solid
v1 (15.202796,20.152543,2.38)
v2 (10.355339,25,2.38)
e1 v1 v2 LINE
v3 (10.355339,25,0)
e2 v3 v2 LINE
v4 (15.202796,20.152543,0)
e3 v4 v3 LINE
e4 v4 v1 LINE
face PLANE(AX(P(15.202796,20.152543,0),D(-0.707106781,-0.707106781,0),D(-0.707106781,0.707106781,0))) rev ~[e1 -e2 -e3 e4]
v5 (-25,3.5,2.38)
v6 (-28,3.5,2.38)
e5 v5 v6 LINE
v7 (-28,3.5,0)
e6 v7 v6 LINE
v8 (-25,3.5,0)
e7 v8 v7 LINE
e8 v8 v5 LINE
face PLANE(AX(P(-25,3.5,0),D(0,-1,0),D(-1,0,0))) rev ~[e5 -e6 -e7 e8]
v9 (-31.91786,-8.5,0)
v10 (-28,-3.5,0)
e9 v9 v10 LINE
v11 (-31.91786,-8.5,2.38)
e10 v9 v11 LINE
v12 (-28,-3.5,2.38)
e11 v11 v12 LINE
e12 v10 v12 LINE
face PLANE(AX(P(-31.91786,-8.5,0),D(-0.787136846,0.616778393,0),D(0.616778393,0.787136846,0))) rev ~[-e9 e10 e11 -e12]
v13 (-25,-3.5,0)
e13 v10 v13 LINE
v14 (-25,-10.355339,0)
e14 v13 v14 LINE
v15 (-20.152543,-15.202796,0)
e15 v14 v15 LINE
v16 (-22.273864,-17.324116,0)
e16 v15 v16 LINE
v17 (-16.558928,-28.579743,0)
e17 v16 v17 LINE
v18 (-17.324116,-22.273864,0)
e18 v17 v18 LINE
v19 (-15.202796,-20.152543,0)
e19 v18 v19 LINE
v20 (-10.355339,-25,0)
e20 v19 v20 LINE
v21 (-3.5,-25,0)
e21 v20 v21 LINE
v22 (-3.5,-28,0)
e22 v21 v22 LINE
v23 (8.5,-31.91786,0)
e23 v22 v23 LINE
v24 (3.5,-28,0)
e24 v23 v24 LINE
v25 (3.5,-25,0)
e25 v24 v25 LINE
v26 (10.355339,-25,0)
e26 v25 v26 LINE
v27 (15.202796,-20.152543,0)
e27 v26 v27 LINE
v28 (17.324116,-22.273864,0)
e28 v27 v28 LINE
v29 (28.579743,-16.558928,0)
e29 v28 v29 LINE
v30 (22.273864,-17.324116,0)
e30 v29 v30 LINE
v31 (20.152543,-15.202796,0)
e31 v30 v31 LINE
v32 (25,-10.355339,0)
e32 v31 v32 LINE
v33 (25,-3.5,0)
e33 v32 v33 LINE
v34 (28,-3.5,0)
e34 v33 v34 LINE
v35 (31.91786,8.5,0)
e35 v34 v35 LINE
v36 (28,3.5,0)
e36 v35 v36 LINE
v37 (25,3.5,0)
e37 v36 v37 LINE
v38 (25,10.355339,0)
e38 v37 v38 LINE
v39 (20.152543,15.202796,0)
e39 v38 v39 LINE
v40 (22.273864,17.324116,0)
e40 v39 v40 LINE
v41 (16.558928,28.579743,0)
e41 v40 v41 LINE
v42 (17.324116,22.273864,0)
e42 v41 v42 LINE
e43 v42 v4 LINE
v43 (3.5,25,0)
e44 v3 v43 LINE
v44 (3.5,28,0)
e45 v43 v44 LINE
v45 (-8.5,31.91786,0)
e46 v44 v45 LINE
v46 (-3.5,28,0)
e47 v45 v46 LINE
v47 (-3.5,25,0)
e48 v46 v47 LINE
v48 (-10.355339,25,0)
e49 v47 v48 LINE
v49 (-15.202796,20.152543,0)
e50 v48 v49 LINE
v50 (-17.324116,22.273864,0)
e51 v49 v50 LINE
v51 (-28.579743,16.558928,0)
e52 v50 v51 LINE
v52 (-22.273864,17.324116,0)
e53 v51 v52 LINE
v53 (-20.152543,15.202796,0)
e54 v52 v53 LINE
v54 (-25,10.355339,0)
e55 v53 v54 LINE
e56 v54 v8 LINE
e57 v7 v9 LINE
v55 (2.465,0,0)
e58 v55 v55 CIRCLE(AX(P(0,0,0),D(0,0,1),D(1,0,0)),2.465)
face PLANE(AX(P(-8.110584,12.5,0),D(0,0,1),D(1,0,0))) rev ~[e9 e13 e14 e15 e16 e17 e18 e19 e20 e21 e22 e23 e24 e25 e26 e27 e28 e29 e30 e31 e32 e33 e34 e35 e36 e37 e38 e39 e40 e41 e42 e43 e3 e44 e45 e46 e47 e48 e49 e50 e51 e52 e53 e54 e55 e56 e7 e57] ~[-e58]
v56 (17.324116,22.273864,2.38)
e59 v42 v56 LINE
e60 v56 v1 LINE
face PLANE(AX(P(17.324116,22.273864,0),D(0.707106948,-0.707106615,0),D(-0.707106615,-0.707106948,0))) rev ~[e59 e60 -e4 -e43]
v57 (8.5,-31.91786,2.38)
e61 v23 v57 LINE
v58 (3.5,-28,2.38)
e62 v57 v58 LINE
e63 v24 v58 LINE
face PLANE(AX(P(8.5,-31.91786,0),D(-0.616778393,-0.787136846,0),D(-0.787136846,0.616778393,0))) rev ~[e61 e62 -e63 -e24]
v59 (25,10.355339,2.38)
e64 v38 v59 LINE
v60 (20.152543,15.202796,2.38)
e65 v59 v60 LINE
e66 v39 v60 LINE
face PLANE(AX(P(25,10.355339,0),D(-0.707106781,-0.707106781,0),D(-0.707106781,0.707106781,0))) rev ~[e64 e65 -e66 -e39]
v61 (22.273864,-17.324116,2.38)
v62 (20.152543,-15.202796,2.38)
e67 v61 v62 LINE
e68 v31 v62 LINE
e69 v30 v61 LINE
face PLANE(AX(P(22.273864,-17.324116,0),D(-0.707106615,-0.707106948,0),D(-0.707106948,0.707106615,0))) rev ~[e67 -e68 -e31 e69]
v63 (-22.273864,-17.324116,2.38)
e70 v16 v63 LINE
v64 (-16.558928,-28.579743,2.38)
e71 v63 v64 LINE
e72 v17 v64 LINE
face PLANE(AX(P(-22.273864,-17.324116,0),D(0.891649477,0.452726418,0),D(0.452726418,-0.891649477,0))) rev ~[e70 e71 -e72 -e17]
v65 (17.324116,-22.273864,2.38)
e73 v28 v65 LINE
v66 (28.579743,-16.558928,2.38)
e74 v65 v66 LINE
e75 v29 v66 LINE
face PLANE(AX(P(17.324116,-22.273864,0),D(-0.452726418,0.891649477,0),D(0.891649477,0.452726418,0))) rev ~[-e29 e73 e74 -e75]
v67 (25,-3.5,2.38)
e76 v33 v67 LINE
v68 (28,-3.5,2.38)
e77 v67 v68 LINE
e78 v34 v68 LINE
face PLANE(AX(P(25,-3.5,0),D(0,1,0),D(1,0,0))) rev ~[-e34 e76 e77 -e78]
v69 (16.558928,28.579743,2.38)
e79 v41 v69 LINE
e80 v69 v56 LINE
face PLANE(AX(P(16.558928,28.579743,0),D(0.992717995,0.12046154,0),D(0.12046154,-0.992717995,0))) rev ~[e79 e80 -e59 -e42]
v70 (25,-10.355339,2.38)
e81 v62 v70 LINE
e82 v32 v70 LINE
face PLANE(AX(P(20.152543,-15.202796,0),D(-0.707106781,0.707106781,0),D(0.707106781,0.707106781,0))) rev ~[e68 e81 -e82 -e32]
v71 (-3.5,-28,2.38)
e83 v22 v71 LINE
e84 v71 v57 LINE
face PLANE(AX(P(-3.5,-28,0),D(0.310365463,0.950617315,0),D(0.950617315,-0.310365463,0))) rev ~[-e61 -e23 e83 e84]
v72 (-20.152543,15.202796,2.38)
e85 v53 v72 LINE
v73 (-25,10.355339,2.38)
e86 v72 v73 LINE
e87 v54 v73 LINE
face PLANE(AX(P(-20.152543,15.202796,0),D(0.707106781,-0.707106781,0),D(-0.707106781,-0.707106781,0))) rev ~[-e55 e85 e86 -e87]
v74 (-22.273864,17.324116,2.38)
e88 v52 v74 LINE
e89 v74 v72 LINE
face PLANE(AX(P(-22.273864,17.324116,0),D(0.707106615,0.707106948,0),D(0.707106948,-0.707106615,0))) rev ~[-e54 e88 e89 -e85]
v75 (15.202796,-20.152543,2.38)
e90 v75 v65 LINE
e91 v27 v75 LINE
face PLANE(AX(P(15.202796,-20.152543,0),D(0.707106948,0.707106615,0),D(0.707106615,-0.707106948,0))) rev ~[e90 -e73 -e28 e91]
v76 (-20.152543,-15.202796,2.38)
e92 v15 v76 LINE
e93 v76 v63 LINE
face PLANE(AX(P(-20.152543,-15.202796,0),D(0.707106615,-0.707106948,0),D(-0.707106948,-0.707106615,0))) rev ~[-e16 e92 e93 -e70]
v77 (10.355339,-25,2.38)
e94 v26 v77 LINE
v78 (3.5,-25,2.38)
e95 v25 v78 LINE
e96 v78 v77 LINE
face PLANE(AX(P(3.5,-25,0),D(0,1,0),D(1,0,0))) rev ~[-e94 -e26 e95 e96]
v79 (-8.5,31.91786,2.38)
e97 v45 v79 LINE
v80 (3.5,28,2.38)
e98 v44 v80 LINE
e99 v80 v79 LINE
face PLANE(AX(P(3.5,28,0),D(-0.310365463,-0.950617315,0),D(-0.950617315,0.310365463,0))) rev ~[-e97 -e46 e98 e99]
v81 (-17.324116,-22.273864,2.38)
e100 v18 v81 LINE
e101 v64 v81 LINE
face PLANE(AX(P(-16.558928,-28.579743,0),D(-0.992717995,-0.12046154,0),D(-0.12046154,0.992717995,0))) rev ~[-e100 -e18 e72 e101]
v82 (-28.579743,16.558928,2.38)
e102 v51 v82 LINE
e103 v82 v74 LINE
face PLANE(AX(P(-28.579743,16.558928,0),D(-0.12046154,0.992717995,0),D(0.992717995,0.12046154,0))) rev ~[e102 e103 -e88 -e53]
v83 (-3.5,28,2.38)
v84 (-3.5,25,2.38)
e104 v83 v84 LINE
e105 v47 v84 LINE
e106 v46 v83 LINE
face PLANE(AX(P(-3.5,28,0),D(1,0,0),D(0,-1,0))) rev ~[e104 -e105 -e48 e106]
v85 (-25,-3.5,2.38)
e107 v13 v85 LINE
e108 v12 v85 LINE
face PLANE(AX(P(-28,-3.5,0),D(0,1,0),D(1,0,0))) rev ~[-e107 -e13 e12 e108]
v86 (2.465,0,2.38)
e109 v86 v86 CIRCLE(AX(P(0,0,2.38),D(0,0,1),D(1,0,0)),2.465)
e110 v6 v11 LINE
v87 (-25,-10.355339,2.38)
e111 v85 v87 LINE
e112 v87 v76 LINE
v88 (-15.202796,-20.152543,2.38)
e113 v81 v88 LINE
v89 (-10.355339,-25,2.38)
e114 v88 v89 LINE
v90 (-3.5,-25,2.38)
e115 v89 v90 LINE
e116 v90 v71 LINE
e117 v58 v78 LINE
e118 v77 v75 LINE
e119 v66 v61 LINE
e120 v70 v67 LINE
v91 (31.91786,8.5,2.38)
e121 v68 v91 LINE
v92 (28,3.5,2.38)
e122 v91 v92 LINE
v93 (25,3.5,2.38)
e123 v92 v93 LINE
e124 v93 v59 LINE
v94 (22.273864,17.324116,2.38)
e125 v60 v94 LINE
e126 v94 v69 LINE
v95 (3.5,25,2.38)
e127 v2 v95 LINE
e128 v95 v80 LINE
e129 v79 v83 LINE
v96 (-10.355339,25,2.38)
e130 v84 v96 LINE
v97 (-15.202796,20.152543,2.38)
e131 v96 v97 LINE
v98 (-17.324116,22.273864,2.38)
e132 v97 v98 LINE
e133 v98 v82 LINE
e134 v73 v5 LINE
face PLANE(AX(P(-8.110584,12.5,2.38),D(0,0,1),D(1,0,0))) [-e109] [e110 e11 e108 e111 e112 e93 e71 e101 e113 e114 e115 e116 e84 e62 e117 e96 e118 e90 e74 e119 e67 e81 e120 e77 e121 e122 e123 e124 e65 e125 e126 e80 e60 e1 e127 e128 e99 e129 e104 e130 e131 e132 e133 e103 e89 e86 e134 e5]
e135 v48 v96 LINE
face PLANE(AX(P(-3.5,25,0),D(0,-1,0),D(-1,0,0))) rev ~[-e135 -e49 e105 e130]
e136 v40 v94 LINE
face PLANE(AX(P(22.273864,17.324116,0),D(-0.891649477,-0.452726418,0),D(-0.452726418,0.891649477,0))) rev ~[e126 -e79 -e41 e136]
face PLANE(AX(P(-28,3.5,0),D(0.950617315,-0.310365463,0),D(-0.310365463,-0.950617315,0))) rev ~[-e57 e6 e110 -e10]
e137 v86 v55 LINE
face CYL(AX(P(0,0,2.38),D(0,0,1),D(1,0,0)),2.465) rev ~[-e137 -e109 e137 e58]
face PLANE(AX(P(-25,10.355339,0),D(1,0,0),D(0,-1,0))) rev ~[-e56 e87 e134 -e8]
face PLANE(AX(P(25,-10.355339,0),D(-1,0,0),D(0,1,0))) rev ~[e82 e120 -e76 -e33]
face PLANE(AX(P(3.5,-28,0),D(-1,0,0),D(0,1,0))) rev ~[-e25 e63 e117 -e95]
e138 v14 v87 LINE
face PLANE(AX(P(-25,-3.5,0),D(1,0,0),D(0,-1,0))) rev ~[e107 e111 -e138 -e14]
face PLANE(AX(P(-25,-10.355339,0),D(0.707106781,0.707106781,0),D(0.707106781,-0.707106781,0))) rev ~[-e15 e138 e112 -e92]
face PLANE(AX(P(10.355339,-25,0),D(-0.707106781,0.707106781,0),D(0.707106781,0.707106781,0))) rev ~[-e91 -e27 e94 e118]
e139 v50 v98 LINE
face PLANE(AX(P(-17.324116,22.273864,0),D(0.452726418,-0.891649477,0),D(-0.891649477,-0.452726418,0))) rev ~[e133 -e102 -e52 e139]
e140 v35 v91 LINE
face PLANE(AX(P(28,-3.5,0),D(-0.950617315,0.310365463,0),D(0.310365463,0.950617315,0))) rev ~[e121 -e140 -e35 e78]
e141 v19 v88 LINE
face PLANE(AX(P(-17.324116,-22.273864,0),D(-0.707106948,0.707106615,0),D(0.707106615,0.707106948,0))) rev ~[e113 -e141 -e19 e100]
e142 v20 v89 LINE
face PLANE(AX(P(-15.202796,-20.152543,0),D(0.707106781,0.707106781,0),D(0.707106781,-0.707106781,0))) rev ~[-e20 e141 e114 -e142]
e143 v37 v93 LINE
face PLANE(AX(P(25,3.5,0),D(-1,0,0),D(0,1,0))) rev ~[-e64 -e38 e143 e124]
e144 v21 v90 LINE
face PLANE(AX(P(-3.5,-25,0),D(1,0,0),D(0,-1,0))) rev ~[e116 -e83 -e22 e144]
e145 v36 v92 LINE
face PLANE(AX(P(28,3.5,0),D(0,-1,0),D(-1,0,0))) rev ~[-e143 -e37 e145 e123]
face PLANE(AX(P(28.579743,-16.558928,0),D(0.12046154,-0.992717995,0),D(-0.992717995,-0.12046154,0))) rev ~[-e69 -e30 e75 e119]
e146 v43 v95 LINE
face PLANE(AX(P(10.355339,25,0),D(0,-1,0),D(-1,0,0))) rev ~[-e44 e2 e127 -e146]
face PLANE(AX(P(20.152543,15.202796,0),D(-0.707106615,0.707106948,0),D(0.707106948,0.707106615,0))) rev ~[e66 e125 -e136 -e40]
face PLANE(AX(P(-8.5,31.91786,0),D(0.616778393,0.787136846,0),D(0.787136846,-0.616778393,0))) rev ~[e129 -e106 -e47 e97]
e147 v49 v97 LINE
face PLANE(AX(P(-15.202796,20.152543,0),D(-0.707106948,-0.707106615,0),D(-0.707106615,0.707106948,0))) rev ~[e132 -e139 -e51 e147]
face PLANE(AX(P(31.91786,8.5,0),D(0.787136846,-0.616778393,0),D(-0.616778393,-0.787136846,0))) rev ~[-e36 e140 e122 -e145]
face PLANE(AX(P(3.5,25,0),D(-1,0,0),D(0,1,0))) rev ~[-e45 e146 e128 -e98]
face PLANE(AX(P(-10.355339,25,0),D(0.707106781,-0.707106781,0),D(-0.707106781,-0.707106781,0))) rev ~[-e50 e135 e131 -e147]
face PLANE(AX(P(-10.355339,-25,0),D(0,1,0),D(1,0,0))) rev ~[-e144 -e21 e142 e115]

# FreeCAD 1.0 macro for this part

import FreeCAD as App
import Part
import Sketcher
Q = App.Units.Quantity

doc = App.newDocument("Part")
params = doc.addObject("Spreadsheet::Sheet", "Params")
for row, (alias, value) in enumerate([
    ("sketch1_width", "3 mm"),
    ("sketch1_length", "3 mm"),
    ("pad1_length", "2.38 mm"),
    ("sketch2_diameter", "4.93 mm"),
    ("pocket1_length", "25 mm"),
], start=1):
    params.set(f"A{row}", alias)
    params.set(f"B{row}", "=" + value)
    params.setAlias(f"B{row}", alias)

body = doc.addObject("PartDesign::Body", "Body")

# Sketch on XY plane
sketch1 = body.newObject("Sketcher::SketchObject", "Sketch")
sketch1.AttachmentSupport = (doc.getObject("XY_Plane"), [""])
sketch1.MapMode = "FlatFace"
sketch1.addGeometry([
    Part.LineSegment(App.Vector(10.355339, 25, 0), App.Vector(3.5, 25, 0)),  # 0
    Part.LineSegment(App.Vector(3.5, 25, 0), App.Vector(3.5, 28, 0)),  # 1
    Part.LineSegment(App.Vector(3.5, 28, 0), App.Vector(-8.5, 31.91786, 0)),  # 2
    Part.LineSegment(App.Vector(-8.5, 31.91786, 0), App.Vector(-3.5, 28, 0)),  # 3
    Part.LineSegment(App.Vector(-3.5, 28, 0), App.Vector(-3.5, 25, 0)),  # 4
    Part.LineSegment(App.Vector(-3.5, 25, 0), App.Vector(-10.355339, 25, 0)),  # 5
    Part.LineSegment(App.Vector(-10.355339, 25, 0), App.Vector(-15.202796, 20.152543, 0)),  # 6
    Part.LineSegment(App.Vector(-15.202796, 20.152543, 0), App.Vector(-17.324116, 22.273864, 0)),  # 7
    Part.LineSegment(App.Vector(-17.324116, 22.273864, 0), App.Vector(-28.579743, 16.558928, 0)),  # 8
    Part.LineSegment(App.Vector(-28.579743, 16.558928, 0), App.Vector(-22.273864, 17.324116, 0)),  # 9
    Part.LineSegment(App.Vector(-22.273864, 17.324116, 0), App.Vector(-20.152543, 15.202796, 0)),  # 10
    Part.LineSegment(App.Vector(-20.152543, 15.202796, 0), App.Vector(-25, 10.355339, 0)),  # 11
    Part.LineSegment(App.Vector(-25, 10.355339, 0), App.Vector(-25, 3.5, 0)),  # 12
    Part.LineSegment(App.Vector(-25, 3.5, 0), App.Vector(-28, 3.5, 0)),  # 13
    Part.LineSegment(App.Vector(-28, 3.5, 0), App.Vector(-31.91786, -8.5, 0)),  # 14
    Part.LineSegment(App.Vector(-31.91786, -8.5, 0), App.Vector(-28, -3.5, 0)),  # 15
    Part.LineSegment(App.Vector(-28, -3.5, 0), App.Vector(-25, -3.5, 0)),  # 16
    Part.LineSegment(App.Vector(-25, -3.5, 0), App.Vector(-25, -10.355339, 0)),  # 17
    Part.LineSegment(App.Vector(-25, -10.355339, 0), App.Vector(-20.152543, -15.202796, 0)),  # 18
    Part.LineSegment(App.Vector(-20.152543, -15.202796, 0), App.Vector(-22.273864, -17.324116, 0)),  # 19
    Part.LineSegment(App.Vector(-22.273864, -17.324116, 0), App.Vector(-16.558928, -28.579743, 0)),  # 20
    Part.LineSegment(App.Vector(-16.558928, -28.579743, 0), App.Vector(-17.324116, -22.273864, 0)),  # 21
    Part.LineSegment(App.Vector(-17.324116, -22.273864, 0), App.Vector(-15.202796, -20.152543, 0)),  # 22
    Part.LineSegment(App.Vector(-15.202796, -20.152543, 0), App.Vector(-10.355339, -25, 0)),  # 23
    Part.LineSegment(App.Vector(-10.355339, -25, 0), App.Vector(-3.5, -25, 0)),  # 24
    Part.LineSegment(App.Vector(-3.5, -25, 0), App.Vector(-3.5, -28, 0)),  # 25
    Part.LineSegment(App.Vector(-3.5, -28, 0), App.Vector(8.5, -31.91786, 0)),  # 26
    Part.LineSegment(App.Vector(8.5, -31.91786, 0), App.Vector(3.5, -28, 0)),  # 27
    Part.LineSegment(App.Vector(3.5, -28, 0), App.Vector(3.5, -25, 0)),  # 28
    Part.LineSegment(App.Vector(3.5, -25, 0), App.Vector(10.355339, -25, 0)),  # 29
    Part.LineSegment(App.Vector(10.355339, -25, 0), App.Vector(15.202796, -20.152543, 0)),  # 30
    Part.LineSegment(App.Vector(15.202796, -20.152543, 0), App.Vector(17.324116, -22.273864, 0)),  # 31
    Part.LineSegment(App.Vector(17.324116, -22.273864, 0), App.Vector(28.579743, -16.558928, 0)),  # 32
    Part.LineSegment(App.Vector(28.579743, -16.558928, 0), App.Vector(22.273864, -17.324116, 0)),  # 33
    Part.LineSegment(App.Vector(22.273864, -17.324116, 0), App.Vector(20.152543, -15.202796, 0)),  # 34
    Part.LineSegment(App.Vector(20.152543, -15.202796, 0), App.Vector(25, -10.355339, 0)),  # 35
    Part.LineSegment(App.Vector(25, -10.355339, 0), App.Vector(25, -3.5, 0)),  # 36
    Part.LineSegment(App.Vector(25, -3.5, 0), App.Vector(28, -3.5, 0)),  # 37
    Part.LineSegment(App.Vector(28, -3.5, 0), App.Vector(31.91786, 8.5, 0)),  # 38
    Part.LineSegment(App.Vector(31.91786, 8.5, 0), App.Vector(28, 3.5, 0)),  # 39
    Part.LineSegment(App.Vector(28, 3.5, 0), App.Vector(25, 3.5, 0)),  # 40
    Part.LineSegment(App.Vector(25, 3.5, 0), App.Vector(25, 10.355339, 0)),  # 41
    Part.LineSegment(App.Vector(25, 10.355339, 0), App.Vector(20.152543, 15.202796, 0)),  # 42
    Part.LineSegment(App.Vector(20.152543, 15.202796, 0), App.Vector(22.273864, 17.324116, 0)),  # 43
    Part.LineSegment(App.Vector(22.273864, 17.324116, 0), App.Vector(16.558928, 28.579743, 0)),  # 44
    Part.LineSegment(App.Vector(16.558928, 28.579743, 0), App.Vector(17.324116, 22.273864, 0)),  # 45
    Part.LineSegment(App.Vector(17.324116, 22.273864, 0), App.Vector(15.202796, 20.152543, 0)),  # 46
    Part.LineSegment(App.Vector(15.202796, 20.152543, 0), App.Vector(10.355339, 25, 0)),  # 47
], False)
sketch1.addConstraint([
    Sketcher.Constraint("Coincident", 0, 2, 1, 1),
    Sketcher.Constraint("Coincident", 1, 2, 2, 1),
    Sketcher.Constraint("Coincident", 2, 2, 3, 1),
    Sketcher.Constraint("Coincident", 3, 2, 4, 1),
    Sketcher.Constraint("Coincident", 4, 2, 5, 1),
    Sketcher.Constraint("Coincident", 5, 2, 6, 1),
    Sketcher.Constraint("Coincident", 6, 2, 7, 1),
    Sketcher.Constraint("Coincident", 7, 2, 8, 1),
    Sketcher.Constraint("Coincident", 8, 2, 9, 1),
    Sketcher.Constraint("Coincident", 9, 2, 10, 1),
    Sketcher.Constraint("Coincident", 10, 2, 11, 1),
    Sketcher.Constraint("Coincident", 11, 2, 12, 1),
    Sketcher.Constraint("Coincident", 12, 2, 13, 1),
    Sketcher.Constraint("Coincident", 13, 2, 14, 1),
    Sketcher.Constraint("Coincident", 14, 2, 15, 1),
    Sketcher.Constraint("Coincident", 15, 2, 16, 1),
    Sketcher.Constraint("Coincident", 16, 2, 17, 1),
    Sketcher.Constraint("Coincident", 17, 2, 18, 1),
    Sketcher.Constraint("Coincident", 18, 2, 19, 1),
    Sketcher.Constraint("Coincident", 19, 2, 20, 1),
    Sketcher.Constraint("Coincident", 20, 2, 21, 1),
    Sketcher.Constraint("Coincident", 21, 2, 22, 1),
    Sketcher.Constraint("Coincident", 22, 2, 23, 1),
    Sketcher.Constraint("Coincident", 23, 2, 24, 1),
    Sketcher.Constraint("Coincident", 24, 2, 25, 1),
    Sketcher.Constraint("Coincident", 25, 2, 26, 1),
    Sketcher.Constraint("Coincident", 26, 2, 27, 1),
    Sketcher.Constraint("Coincident", 27, 2, 28, 1),
    Sketcher.Constraint("Coincident", 28, 2, 29, 1),
    Sketcher.Constraint("Coincident", 29, 2, 30, 1),
    Sketcher.Constraint("Coincident", 30, 2, 31, 1),
    Sketcher.Constraint("Coincident", 31, 2, 32, 1),
    Sketcher.Constraint("Coincident", 32, 2, 33, 1),
    Sketcher.Constraint("Coincident", 33, 2, 34, 1),
    Sketcher.Constraint("Coincident", 34, 2, 35, 1),
    Sketcher.Constraint("Coincident", 35, 2, 36, 1),
    Sketcher.Constraint("Coincident", 36, 2, 37, 1),
    Sketcher.Constraint("Coincident", 37, 2, 38, 1),
    Sketcher.Constraint("Coincident", 38, 2, 39, 1),
    Sketcher.Constraint("Coincident", 39, 2, 40, 1),
    Sketcher.Constraint("Coincident", 40, 2, 41, 1),
    Sketcher.Constraint("Coincident", 41, 2, 42, 1),
    Sketcher.Constraint("Coincident", 42, 2, 43, 1),
    Sketcher.Constraint("Coincident", 43, 2, 44, 1),
    Sketcher.Constraint("Coincident", 44, 2, 45, 1),
    Sketcher.Constraint("Coincident", 45, 2, 46, 1),
    Sketcher.Constraint("Coincident", 46, 2, 47, 1),
    Sketcher.Constraint("Coincident", 47, 2, 0, 1),
    Sketcher.Constraint("Horizontal", 0),
    Sketcher.Constraint("Vertical", 1),
    Sketcher.Constraint("Vertical", 4),
    Sketcher.Constraint("Horizontal", 5),
    Sketcher.Constraint("Vertical", 12),
    Sketcher.Constraint("Horizontal", 13),
    Sketcher.Constraint("Horizontal", 16),
    Sketcher.Constraint("Vertical", 17),
    Sketcher.Constraint("Horizontal", 24),
    Sketcher.Constraint("Vertical", 25),
    Sketcher.Constraint("Vertical", 28),
    Sketcher.Constraint("Horizontal", 29),
    Sketcher.Constraint("Vertical", 36),
    Sketcher.Constraint("Horizontal", 37),
    Sketcher.Constraint("Horizontal", 40),
    Sketcher.Constraint("Vertical", 41),
    Sketcher.Constraint("Symmetric", 0, 2, 24, 2, -1, 1),
    Sketcher.Constraint("Symmetric", 2, 2, 26, 2, -1, 1),
    Sketcher.Constraint("Symmetric", 3, 2, 27, 2, -1, 1),
    Sketcher.Constraint("Symmetric", 5, 2, 29, 2, -1, 1),
    Sketcher.Constraint("Symmetric", 6, 2, 30, 2, -1, 1),
    Sketcher.Constraint("Symmetric", 7, 2, 31, 2, -1, 1),
    Sketcher.Constraint("Symmetric", 8, 2, 32, 2, -1, 1),
    Sketcher.Constraint("Symmetric", 9, 2, 33, 2, -1, 1),
    Sketcher.Constraint("Symmetric", 10, 2, 34, 2, -1, 1),
    Sketcher.Constraint("Symmetric", 11, 2, 35, 2, -1, 1),
    Sketcher.Constraint("Symmetric", 13, 2, 37, 2, -1, 1),
    Sketcher.Constraint("Symmetric", 14, 2, 38, 2, -1, 1),
    Sketcher.Constraint("Symmetric", 15, 2, 39, 2, -1, 1),
    Sketcher.Constraint("Symmetric", 17, 2, 41, 2, -1, 1),
    Sketcher.Constraint("Symmetric", 18, 2, 42, 2, -1, 1),
    Sketcher.Constraint("Symmetric", 19, 2, 43, 2, -1, 1),
    Sketcher.Constraint("Symmetric", 20, 2, 44, 2, -1, 1),
    Sketcher.Constraint("Symmetric", 21, 2, 45, 2, -1, 1),
    Sketcher.Constraint("Symmetric", 22, 2, 46, 2, -1, 1),
    Sketcher.Constraint("Symmetric", 1, 2, 3, 2, -2),
    Sketcher.Constraint("Symmetric", 23, 2, 29, 2, -2),
    Sketcher.Constraint("Symmetric", 22, 2, 30, 2, -2),
    Sketcher.Constraint("Symmetric", 21, 2, 31, 2, -2),
    Sketcher.Constraint("Symmetric", 19, 2, 33, 2, -2),
    Sketcher.Constraint("Symmetric", 18, 2, 34, 2, -2),
    Sketcher.Constraint("Symmetric", 17, 2, 35, 2, -2),
    Sketcher.Constraint("Symmetric", 15, 2, 37, 2, -2),
    Sketcher.Constraint("Perpendicular", 6, 7),
    Sketcher.Constraint("Parallel", 7, 10),
    Sketcher.Constraint("Perpendicular", 10, 11),
    Sketcher.Constraint("Perpendicular", 2, 14),
    Sketcher.Constraint("Perpendicular", 3, 15),
    Sketcher.Constraint("Perpendicular", 11, 18),
    Sketcher.Constraint("Perpendicular", 8, 20),
    Sketcher.Constraint("Perpendicular", 9, 21),
    Sketcher.Constraint("Perpendicular", 14, 26),
    Sketcher.Constraint("Perpendicular", 46, 47),
    Sketcher.Constraint("Equal", 40, 1),
    Sketcher.Constraint("Equal", 29, 12),
    Sketcher.Constraint("Equal", 2, 8),
    Sketcher.Constraint("Equal", 3, 9),
    Sketcher.Constraint("Equal", 7, 10),
    Sketcher.Constraint("Equal", 6, 11),
    Sketcher.Constraint("Equal", 8, 14),
    Sketcher.Constraint("Equal", 14, 20),
    Sketcher.Constraint("DistanceX", 13, 2, 13, 1, Q("3 mm")),
    Sketcher.Constraint("Distance", 7, Q("3 mm")),
    Sketcher.Constraint("DistanceY", -1, 1, 0, 2, Q("25 mm")),
    Sketcher.Constraint("DistanceX", 2, 2, 1, 2, Q("12 mm")),
    Sketcher.Constraint("DistanceX", 2, 2, 3, 2, Q("5 mm")),
    Sketcher.Constraint("DistanceX", 0, 2, 0, 1, Q("6.855339 mm")),
    Sketcher.Constraint("DistanceX", 8, 2, 10, 2, Q("8.4272 mm")),
    Sketcher.Constraint("Distance", 6, Q("6.855339 mm")),
])
sketch1.setExpression("Constraints[109]", "Params.sketch1_width")
sketch1.setExpression("Constraints[110]", "Params.sketch1_length")
pad1 = body.newObject("PartDesign::Pad", "Pad")
pad1.Profile = sketch1
pad1.setExpression("Length", "Params.pad1_length")

# Sketch on XY plane
sketch2 = body.newObject("Sketcher::SketchObject", "Sketch001")
sketch2.AttachmentSupport = (doc.getObject("XY_Plane"), [""])
sketch2.MapMode = "FlatFace"
sketch2.AttachmentOffset = App.Placement(App.Vector(0, 0, 2.38), App.Rotation())
sketch2.addGeometry(Part.Circle(App.Vector(0, 0, 0), App.Vector(0, 0, 1), 2.465), False)
sketch2.addConstraint([
    Sketcher.Constraint("Coincident", 0, 3, -1, 1),
    Sketcher.Constraint("Diameter", 0, Q("4.93 mm")),
])
sketch2.setExpression("Constraints[1]", "Params.sketch2_diameter")
pocket1 = body.newObject("PartDesign::Pocket", "Pocket")
pocket1.Profile = sketch2
pocket1.setExpression("Length", "Params.pocket1_length")

doc.recompute()
